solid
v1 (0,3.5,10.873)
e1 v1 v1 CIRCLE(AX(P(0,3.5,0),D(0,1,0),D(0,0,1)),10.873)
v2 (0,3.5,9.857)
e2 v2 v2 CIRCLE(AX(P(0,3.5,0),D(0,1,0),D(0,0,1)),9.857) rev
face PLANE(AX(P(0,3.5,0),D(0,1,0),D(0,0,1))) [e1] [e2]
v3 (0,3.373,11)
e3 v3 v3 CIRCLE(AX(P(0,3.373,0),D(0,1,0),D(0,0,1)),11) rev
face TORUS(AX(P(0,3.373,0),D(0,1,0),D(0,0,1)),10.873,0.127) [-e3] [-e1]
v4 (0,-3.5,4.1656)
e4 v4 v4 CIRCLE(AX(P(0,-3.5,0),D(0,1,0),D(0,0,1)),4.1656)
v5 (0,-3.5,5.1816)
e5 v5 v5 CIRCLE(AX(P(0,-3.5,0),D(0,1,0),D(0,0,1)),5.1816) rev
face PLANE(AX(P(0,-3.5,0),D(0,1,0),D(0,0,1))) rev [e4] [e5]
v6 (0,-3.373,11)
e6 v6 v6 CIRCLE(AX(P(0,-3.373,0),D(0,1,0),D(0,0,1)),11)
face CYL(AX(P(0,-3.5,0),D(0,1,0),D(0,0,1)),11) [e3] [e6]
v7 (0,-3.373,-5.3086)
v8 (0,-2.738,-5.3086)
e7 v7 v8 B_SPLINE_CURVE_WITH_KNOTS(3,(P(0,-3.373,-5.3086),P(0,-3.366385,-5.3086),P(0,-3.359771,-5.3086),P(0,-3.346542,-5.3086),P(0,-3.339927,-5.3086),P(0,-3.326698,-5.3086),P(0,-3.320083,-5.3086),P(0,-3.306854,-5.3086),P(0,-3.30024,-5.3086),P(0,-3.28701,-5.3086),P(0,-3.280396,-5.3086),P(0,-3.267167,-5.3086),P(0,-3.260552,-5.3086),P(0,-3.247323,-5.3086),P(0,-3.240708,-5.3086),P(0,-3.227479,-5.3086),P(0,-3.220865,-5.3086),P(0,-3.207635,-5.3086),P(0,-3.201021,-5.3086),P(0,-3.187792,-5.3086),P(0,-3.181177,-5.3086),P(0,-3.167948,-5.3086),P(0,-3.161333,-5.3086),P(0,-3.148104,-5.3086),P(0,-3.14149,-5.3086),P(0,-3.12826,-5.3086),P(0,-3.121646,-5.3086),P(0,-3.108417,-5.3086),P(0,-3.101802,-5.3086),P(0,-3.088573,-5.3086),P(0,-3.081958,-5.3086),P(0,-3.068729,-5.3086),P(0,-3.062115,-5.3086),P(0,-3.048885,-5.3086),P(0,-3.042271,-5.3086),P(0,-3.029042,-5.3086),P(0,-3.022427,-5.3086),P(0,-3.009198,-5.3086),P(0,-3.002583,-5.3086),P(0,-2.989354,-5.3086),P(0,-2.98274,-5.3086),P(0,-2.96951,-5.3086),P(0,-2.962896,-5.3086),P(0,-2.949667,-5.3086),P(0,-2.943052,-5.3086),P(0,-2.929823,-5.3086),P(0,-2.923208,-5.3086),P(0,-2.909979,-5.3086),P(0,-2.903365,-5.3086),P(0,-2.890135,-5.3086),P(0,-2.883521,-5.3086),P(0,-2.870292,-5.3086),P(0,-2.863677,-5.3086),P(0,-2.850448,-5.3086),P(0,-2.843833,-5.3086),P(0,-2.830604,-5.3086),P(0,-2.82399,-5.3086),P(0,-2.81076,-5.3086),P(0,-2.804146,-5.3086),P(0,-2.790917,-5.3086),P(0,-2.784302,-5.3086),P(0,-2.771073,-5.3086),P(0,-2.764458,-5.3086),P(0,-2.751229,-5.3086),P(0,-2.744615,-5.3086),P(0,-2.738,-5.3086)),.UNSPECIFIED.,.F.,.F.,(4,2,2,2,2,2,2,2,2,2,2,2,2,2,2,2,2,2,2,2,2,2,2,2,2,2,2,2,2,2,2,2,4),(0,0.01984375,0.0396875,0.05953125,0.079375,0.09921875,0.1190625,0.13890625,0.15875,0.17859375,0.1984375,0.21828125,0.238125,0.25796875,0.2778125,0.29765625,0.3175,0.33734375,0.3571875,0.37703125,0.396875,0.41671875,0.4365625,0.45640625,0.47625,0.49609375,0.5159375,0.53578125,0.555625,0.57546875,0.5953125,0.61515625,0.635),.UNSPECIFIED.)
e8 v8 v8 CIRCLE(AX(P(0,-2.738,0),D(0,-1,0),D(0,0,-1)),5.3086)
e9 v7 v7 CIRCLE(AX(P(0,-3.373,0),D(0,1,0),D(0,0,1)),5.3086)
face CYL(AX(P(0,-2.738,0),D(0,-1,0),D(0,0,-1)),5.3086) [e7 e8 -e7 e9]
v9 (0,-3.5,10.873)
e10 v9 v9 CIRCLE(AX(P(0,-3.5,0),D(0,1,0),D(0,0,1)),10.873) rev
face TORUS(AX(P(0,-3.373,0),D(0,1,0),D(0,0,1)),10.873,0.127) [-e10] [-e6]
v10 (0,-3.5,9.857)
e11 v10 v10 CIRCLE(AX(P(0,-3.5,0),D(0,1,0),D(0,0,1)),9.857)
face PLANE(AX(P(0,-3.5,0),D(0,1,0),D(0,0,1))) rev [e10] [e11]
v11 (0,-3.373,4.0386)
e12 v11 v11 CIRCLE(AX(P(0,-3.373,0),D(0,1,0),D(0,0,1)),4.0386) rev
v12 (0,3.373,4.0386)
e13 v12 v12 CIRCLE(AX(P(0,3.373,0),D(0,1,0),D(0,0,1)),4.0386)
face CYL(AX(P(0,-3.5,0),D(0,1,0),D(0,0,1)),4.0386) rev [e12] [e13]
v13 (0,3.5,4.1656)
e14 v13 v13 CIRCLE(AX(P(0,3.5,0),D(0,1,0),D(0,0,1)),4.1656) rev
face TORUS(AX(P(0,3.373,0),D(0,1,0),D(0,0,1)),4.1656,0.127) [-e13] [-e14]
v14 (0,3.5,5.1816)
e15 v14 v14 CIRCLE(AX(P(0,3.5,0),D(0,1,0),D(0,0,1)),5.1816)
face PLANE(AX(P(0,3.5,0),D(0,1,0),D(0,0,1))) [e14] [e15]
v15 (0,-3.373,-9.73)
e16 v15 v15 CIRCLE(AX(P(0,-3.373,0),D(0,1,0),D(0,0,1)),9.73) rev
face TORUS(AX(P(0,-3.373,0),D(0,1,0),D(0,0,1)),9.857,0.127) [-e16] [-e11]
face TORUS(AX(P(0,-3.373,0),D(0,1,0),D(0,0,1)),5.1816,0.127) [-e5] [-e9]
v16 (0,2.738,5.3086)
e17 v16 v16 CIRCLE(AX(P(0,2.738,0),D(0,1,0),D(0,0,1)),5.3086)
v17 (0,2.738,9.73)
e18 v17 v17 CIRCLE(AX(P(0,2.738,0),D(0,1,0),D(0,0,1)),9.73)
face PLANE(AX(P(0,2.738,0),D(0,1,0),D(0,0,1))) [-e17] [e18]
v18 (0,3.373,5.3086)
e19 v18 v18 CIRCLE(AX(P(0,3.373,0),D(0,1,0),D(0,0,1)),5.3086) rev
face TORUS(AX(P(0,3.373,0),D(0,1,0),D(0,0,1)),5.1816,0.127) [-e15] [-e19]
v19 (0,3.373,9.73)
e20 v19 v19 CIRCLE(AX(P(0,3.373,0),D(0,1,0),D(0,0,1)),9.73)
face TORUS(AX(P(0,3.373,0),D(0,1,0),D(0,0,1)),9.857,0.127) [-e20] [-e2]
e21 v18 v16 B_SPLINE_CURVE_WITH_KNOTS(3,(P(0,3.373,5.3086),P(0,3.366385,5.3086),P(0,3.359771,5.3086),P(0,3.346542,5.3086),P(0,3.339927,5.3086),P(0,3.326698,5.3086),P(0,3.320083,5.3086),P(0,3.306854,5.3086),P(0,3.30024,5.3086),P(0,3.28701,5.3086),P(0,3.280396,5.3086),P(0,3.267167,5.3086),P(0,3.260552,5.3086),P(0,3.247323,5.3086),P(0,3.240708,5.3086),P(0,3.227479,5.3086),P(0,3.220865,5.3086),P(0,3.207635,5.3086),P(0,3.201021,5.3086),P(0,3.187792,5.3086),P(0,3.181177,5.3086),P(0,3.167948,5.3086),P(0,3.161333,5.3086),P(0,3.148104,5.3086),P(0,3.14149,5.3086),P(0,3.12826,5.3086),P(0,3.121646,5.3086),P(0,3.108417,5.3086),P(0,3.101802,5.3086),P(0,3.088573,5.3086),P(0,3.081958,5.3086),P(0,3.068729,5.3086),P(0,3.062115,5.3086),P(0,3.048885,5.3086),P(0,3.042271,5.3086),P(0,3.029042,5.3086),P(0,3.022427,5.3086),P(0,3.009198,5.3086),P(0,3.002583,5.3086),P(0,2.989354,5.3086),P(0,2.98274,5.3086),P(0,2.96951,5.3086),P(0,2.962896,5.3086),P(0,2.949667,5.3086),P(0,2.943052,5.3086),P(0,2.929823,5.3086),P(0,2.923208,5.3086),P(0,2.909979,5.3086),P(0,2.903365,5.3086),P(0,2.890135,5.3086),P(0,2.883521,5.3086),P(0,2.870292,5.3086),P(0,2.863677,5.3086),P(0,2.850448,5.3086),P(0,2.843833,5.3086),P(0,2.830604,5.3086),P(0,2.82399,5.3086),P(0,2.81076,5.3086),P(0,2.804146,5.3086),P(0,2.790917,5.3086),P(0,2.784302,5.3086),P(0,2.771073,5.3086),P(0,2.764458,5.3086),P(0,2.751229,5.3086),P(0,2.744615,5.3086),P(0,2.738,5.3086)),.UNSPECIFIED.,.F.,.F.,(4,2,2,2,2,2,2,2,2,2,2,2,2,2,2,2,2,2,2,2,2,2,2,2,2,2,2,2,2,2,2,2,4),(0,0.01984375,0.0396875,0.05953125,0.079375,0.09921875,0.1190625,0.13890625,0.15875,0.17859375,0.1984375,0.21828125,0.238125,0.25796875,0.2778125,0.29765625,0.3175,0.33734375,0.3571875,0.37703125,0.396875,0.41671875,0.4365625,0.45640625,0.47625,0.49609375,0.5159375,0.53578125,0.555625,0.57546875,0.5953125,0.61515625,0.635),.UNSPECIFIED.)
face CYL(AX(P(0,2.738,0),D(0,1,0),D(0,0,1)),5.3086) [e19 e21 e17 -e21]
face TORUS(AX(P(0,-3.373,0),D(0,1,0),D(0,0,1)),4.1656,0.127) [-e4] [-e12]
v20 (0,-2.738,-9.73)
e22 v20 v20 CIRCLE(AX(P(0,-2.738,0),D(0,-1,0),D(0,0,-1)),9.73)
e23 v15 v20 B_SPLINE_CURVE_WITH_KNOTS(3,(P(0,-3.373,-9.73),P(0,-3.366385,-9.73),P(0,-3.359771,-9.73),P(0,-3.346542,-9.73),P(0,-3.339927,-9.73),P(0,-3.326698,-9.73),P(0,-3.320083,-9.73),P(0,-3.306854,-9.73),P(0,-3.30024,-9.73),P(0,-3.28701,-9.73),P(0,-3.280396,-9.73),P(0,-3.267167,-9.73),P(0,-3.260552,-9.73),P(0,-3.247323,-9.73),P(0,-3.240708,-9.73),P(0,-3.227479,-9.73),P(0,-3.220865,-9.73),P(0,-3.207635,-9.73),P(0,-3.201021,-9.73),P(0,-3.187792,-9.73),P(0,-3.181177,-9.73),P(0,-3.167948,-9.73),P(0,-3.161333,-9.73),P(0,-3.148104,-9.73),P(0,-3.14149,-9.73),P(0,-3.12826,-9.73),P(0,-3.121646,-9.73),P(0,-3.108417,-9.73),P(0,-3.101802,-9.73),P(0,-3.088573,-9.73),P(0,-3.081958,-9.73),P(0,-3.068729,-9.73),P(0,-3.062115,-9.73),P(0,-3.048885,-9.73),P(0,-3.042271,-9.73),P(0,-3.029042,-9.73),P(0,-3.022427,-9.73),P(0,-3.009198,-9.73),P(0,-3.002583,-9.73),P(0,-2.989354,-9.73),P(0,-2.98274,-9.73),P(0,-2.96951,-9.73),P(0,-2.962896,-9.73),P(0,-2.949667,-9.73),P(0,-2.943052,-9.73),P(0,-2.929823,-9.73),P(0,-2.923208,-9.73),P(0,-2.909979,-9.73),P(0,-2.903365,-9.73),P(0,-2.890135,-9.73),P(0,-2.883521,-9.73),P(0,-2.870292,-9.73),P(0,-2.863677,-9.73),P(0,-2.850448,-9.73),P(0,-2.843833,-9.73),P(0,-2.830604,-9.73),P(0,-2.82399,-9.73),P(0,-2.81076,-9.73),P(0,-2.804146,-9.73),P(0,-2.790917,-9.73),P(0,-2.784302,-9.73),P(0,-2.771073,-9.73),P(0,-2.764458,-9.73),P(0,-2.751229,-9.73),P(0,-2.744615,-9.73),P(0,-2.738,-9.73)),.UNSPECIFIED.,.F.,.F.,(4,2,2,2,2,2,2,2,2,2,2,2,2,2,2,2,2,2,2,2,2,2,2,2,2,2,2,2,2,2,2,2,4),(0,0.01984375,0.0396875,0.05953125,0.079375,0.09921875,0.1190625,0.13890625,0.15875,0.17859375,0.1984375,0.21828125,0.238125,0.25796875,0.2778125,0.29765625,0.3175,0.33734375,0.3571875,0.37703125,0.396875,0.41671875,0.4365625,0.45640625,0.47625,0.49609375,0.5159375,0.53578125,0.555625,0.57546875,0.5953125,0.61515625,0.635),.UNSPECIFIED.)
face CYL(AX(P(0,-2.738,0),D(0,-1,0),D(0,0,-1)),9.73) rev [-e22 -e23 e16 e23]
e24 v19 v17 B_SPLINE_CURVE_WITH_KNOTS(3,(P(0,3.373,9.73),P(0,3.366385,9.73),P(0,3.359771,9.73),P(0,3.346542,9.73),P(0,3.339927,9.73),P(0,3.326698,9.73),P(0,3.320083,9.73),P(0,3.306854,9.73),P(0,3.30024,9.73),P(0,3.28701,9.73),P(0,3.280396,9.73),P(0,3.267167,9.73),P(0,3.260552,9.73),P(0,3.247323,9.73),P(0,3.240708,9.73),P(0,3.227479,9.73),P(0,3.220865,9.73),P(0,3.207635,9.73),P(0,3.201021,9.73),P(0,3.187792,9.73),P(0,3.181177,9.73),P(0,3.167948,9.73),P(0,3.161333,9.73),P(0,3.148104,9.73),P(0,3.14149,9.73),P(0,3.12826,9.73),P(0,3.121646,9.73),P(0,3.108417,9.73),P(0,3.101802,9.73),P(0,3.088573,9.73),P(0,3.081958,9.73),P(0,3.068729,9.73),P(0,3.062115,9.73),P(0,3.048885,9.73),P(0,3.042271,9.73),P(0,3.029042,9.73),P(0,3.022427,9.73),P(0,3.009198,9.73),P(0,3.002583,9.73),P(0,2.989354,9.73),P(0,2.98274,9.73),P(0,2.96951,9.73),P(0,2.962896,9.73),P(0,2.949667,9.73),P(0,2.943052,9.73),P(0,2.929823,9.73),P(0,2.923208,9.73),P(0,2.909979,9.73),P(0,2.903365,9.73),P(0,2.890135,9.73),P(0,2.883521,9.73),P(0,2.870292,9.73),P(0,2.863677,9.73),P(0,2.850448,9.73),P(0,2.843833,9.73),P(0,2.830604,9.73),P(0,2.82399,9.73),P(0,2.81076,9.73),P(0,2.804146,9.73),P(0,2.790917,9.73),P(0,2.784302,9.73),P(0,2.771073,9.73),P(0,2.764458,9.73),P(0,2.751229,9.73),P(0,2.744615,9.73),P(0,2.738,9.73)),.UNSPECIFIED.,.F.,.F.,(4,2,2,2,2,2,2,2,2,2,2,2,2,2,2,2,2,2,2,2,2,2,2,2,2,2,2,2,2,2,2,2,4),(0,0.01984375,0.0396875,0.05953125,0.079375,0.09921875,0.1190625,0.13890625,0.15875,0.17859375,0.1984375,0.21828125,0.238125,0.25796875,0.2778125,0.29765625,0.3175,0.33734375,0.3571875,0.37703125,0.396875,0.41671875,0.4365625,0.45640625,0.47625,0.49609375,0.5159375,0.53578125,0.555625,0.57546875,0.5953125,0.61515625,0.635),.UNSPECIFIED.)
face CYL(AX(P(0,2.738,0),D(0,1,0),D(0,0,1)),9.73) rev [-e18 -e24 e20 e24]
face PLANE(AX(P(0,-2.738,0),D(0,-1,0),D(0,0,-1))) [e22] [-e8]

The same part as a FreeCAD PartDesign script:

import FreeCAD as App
import Part
import Sketcher

V = App.Vector
Q = App.Units.Quantity


def edges_at(feature, points):
    """Names of the edges that pass closest to the given points."""
    edges = feature.Shape.Edges
    near = lambda p: min(range(len(edges)), key=lambda i: edges[i].distToShape(Part.Vertex(*p))[0])
    return sorted({f"Edge{near(p) + 1}" for p in points})

doc = App.newDocument("Part")
params = doc.addObject("Spreadsheet::Sheet", "Params")
for row, (alias, value) in enumerate([
    ("sketch1_diameter", "0.318 in"),
    ("pad1_length", "3.5 mm"),
    ("pad1_length2", "3.5 mm"),
    ("sketch2_diameter", "0.418 in"),
    ("pocket1_length", "0.03 in"),
    ("sketch3_diameter", "0.418 in"),
    ("pocket2_length", "0.03 in"),
    ("fillet_radius", "0.005 in"),
], start=1):
    params.set(f"A{row}", alias)
    params.set(f"B{row}", "=" + value)
    params.setAlias(f"B{row}", alias)

body = doc.addObject("PartDesign::Body", "Body")

sketch1 = doc.addObject("Sketcher::SketchObject", "Sketch")
body.addObject(sketch1)
sketch1.AttachmentSupport = (doc.XZ_Plane, [""])
sketch1.MapMode = "FlatFace"
sketch1.addGeometry(Part.Circle(V(0, 0, 0), V(0, 0, 1), 11), False)
sketch1.addGeometry(Part.Circle(V(0, 0, 0), V(0, 0, 1), 4), False)
sketch1.addConstraint(Sketcher.Constraint("Coincident", 0, 3, -1, 1))
sketch1.addConstraint(Sketcher.Constraint("Coincident", 1, 3, -1, 1))
sketch1.addConstraint(Sketcher.Constraint("Diameter", 1, Q("0.318 in")))
sketch1.addConstraint(Sketcher.Constraint("Diameter", 0, Q("22 mm")))
sketch1.setExpression("Constraints[2]", "Params.sketch1_diameter")
pad1 = doc.addObject("PartDesign::Pad", "Pad")
body.addObject(pad1)
pad1.Profile = sketch1
pad1.Type = "TwoLengths"
pad1.setExpression("Length", "Params.pad1_length")
pad1.setExpression("Length2", "Params.pad1_length2")
pad1.Reversed = True

sketch2 = doc.addObject("Sketcher::SketchObject", "Sketch001")
body.addObject(sketch2)
sketch2.AttachmentSupport = (doc.XZ_Plane, [""])
sketch2.MapMode = "FlatFace"
sketch2.AttachmentOffset = App.Placement(V(0, 0, -3.5), App.Rotation())
sketch2.addGeometry(Part.Circle(V(0, 0, 0), V(0, 0, 1), 10), False)
sketch2.addGeometry(Part.Circle(V(0, 0, 0), V(0, 0, 1), 5), False)
sketch2.addConstraint(Sketcher.Constraint("Coincident", 0, 3, -1, 1))
sketch2.addConstraint(Sketcher.Constraint("Coincident", 1, 3, -1, 1))
sketch2.addConstraint(Sketcher.Constraint("Diameter", 1, Q("0.418 in")))
sketch2.addConstraint(Sketcher.Constraint("Diameter", 0, Q("19.46 mm")))
sketch2.setExpression("Constraints[2]", "Params.sketch2_diameter")
pocket1 = doc.addObject("PartDesign::Pocket", "Pocket")
body.addObject(pocket1)
pocket1.Profile = sketch2
pocket1.setExpression("Length", "Params.pocket1_length")
pocket1.Reversed = True

sketch3 = doc.addObject("Sketcher::SketchObject", "Sketch002")
body.addObject(sketch3)
sketch3.AttachmentSupport = (doc.XZ_Plane, [""])
sketch3.MapMode = "FlatFace"
sketch3.AttachmentOffset = App.Placement(V(0, 0, 2.738), App.Rotation())
sketch3.addGeometry(Part.Circle(V(0, 0, 0), V(0, 0, 1), 10), False)
sketch3.addGeometry(Part.Circle(V(0, 0, 0), V(0, 0, 1), 5), False)
sketch3.addConstraint(Sketcher.Constraint("Coincident", 0, 3, -1, 1))
sketch3.addConstraint(Sketcher.Constraint("Coincident", 1, 3, -1, 1))
sketch3.addConstraint(Sketcher.Constraint("Diameter", 1, Q("0.418 in")))
sketch3.addConstraint(Sketcher.Constraint("Diameter", 0, Q("19.46 mm")))
sketch3.setExpression("Constraints[2]", "Params.sketch3_diameter")
pocket2 = doc.addObject("PartDesign::Pocket", "Pocket001")
body.addObject(pocket2)
pocket2.Profile = sketch3
pocket2.setExpression("Length", "Params.pocket2_length")
pocket2.Reversed = True
doc.recompute()

fillet = doc.addObject("PartDesign::Fillet", "Fillet")
body.addObject(fillet)
fillet.Base = (pocket2, edges_at(pocket2, [
    (0, 3.5, -9.73),
    (0, 3.5, -5.309),
    (0, -3.5, -9.73),
    (0, -3.5, -5.309),
    (0, -3.5, -11),
    (0, -3.5, -4.039),
    (0, 3.5, -11),
    (0, 3.5, -4.039),
]))
fillet.setExpression("Radius", "Params.fillet_radius")

doc.recompute()
